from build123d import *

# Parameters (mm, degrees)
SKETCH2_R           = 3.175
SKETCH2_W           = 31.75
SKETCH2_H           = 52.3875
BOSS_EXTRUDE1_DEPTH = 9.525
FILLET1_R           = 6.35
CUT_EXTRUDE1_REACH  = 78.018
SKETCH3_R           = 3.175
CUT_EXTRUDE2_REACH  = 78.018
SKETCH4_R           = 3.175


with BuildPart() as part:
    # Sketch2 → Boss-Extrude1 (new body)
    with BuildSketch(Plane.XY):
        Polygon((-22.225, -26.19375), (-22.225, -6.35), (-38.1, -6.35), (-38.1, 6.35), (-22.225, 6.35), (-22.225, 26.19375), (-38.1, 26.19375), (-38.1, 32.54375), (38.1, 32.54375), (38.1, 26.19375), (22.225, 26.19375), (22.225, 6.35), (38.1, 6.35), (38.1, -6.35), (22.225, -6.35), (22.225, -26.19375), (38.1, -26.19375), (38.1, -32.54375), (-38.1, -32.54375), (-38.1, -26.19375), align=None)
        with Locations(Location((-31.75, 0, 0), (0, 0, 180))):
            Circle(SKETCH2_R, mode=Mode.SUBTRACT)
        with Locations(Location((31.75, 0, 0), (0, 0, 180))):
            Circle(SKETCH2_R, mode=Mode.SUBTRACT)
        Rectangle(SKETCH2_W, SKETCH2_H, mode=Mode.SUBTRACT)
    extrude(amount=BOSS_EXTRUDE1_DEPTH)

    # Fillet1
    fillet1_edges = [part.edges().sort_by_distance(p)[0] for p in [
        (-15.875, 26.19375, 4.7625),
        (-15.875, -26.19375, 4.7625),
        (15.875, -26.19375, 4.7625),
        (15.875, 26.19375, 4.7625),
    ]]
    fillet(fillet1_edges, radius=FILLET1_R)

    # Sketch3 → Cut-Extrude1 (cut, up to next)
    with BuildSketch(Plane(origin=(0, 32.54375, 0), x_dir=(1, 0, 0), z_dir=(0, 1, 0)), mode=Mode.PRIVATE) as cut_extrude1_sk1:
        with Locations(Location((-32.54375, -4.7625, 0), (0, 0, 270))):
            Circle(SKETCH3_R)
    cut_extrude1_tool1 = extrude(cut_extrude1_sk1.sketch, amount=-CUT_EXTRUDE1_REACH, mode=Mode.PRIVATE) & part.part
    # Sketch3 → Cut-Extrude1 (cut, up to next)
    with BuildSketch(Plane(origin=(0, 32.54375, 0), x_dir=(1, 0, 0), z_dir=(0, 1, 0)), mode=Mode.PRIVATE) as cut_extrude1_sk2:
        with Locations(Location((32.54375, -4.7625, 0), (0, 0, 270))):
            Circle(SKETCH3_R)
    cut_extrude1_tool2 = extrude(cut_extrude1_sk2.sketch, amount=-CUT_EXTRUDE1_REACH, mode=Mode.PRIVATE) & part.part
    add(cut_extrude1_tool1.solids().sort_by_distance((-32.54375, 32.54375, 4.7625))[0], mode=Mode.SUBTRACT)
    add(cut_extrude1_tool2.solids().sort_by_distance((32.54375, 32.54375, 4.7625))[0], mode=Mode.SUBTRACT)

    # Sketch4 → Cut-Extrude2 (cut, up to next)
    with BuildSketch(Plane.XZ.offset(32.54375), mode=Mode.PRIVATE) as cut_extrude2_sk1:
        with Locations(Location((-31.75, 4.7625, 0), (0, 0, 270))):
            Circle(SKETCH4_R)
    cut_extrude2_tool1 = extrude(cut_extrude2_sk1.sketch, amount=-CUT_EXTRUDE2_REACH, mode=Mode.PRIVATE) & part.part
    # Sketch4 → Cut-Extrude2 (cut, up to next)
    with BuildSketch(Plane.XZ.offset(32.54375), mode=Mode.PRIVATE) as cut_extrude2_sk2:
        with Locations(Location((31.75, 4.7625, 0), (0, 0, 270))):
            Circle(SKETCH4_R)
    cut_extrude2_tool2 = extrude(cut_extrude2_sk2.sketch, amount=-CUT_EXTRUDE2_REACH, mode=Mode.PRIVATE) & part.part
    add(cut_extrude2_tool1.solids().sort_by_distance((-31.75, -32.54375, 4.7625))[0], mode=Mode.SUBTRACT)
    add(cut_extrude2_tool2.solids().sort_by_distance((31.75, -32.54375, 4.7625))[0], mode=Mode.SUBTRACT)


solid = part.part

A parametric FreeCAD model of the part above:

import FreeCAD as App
import Part
import Sketcher
Q = App.Units.Quantity


def edges_at(feature, points):
    """Names of the edges that pass closest to the given points."""
    edges = feature.Shape.Edges
    near = lambda p: min(range(len(edges)), key=lambda i: edges[i].distToShape(Part.Vertex(*p))[0])
    return sorted({f"Edge{near(p) + 1}" for p in points})


def add_polygon(sketch, points):
    """Adds a closed chain of lines whose ends are joined by coincident constraints."""
    first, n = sketch.GeometryCount, len(points)
    for a, b in zip(points, points[1:] + points[:1]):
        sketch.addGeometry(Part.LineSegment(App.Vector(*a, 0), App.Vector(*b, 0)), False)
    for i in range(n):
        sketch.addConstraint(Sketcher.Constraint("Coincident", first + i, 2, first + (i + 1) % n, 1))

doc = App.newDocument("Part")
body = doc.addObject("PartDesign::Body", "Body")

# Sketch on XY plane
sketch1 = body.newObject("Sketcher::SketchObject", "Sketch")
sketch1.AttachmentSupport = (doc.getObject("XY_Plane"), [""])
sketch1.MapMode = "FlatFace"
add_polygon(sketch1, [(-22.225, -6.35), (-22.225, -26.19375), (-38.1, -26.19375), (-38.1, -32.54375), (38.1, -32.54375), (38.1, -26.19375), (22.225, -26.19375), (22.225, -6.35), (38.1, -6.35), (38.1, 6.35), (22.225, 6.35), (22.225, 26.19375), (38.1, 26.19375), (38.1, 32.54375), (-38.1, 32.54375), (-38.1, 26.19375), (-22.225, 26.19375), (-22.225, 6.35), (-38.1, 6.35), (-38.1, -6.35)])  # lines 0-19
sketch1.addGeometry(Part.Circle(App.Vector(31.75, 0, 0), App.Vector(0, 0, 1), 3.175), False)  # 20
add_polygon(sketch1, [(-15.875, -26.19375), (-15.875, 26.19375), (15.875, 26.19375), (15.875, -26.19375)])  # lines 21-24
sketch1.addGeometry(Part.Circle(App.Vector(-31.75, 0, 0), App.Vector(0, 0, 1), 3.175), False)  # 25
sketch1.addConstraint([
    Sketcher.Constraint("Vertical", 0),
    Sketcher.Constraint("Horizontal", 1),
    Sketcher.Constraint("Vertical", 2),
    Sketcher.Constraint("Horizontal", 3),
    Sketcher.Constraint("Vertical", 4),
    Sketcher.Constraint("Horizontal", 5),
    Sketcher.Constraint("Vertical", 6),
    Sketcher.Constraint("Horizontal", 7),
    Sketcher.Constraint("Vertical", 8),
    Sketcher.Constraint("Horizontal", 9),
    Sketcher.Constraint("Vertical", 10),
    Sketcher.Constraint("Horizontal", 11),
    Sketcher.Constraint("Vertical", 12),
    Sketcher.Constraint("Horizontal", 13),
    Sketcher.Constraint("Vertical", 14),
    Sketcher.Constraint("Horizontal", 15),
    Sketcher.Constraint("Vertical", 16),
    Sketcher.Constraint("Horizontal", 17),
    Sketcher.Constraint("Vertical", 18),
    Sketcher.Constraint("Horizontal", 19),
    Sketcher.Constraint("Vertical", 21),
    Sketcher.Constraint("Horizontal", 22),
    Sketcher.Constraint("Vertical", 23),
    Sketcher.Constraint("Horizontal", 24),
    Sketcher.Constraint("Equal", 20, 25),
    Sketcher.Constraint("Symmetric", 20, 3, 25, 3, -1, 1),
    Sketcher.Constraint("Symmetric", 0, 2, 10, 2, -1, 1),
    Sketcher.Constraint("Symmetric", 2, 2, 12, 2, -1, 1),
    Sketcher.Constraint("Symmetric", 4, 2, 14, 2, -1, 1),
    Sketcher.Constraint("Symmetric", 6, 2, 16, 2, -1, 1),
    Sketcher.Constraint("Symmetric", 8, 2, 18, 2, -1, 1),
    Sketcher.Constraint("Symmetric", 21, 2, 23, 2, -1, 1),
    Sketcher.Constraint("Symmetric", 1, 2, 4, 2, -2),
    Sketcher.Constraint("Symmetric", 9, 2, 16, 2, -2),
    Sketcher.Constraint("PointOnObject", 20, 3, -1),
    Sketcher.Constraint("Horizontal", 15, 2, 21, 2),
    Sketcher.Constraint("Vertical", 4, 2, 7, 2),
    Sketcher.Constraint("Diameter", 20, Q("0.25 in")),
    Sketcher.Constraint("DistanceX", 3, 1, 3, 2, Q("3 in")),
    Sketcher.Constraint("DistanceY", 8, 1, 8, 2, Q("0.5 in")),
    Sketcher.Constraint("DistanceX", 22, 1, 22, 2, Q("1.25 in")),
    Sketcher.Constraint("DistanceY", 2, 2, 2, 1, Q("0.25 in")),
    Sketcher.Constraint("DistanceX", 25, 3, 20, 3, Q("2.5 in")),
    Sketcher.Constraint("DistanceX", 1, 2, 1, 1, Q("0.625 in")),
    Sketcher.Constraint("DistanceY", 0, 2, 0, 1, Q("0.78125 in")),
])
pad1 = body.newObject("PartDesign::Pad", "Pad")
pad1.Profile = sketch1
pad1.Length = Q("0.375 in")
doc.recompute()

fillet = body.newObject("PartDesign::Fillet", "Fillet")
fillet.Base = (pad1, edges_at(pad1, [
    (-15.875, 26.194, 4.763),
    (-15.875, -26.194, 4.763),
    (15.875, -26.194, 4.763),
    (15.875, 26.194, 4.763),
]))
fillet.Radius = Q("0.25 in")

# Sketch on XZ plane
sketch2 = body.newObject("Sketcher::SketchObject", "Sketch001")
sketch2.AttachmentSupport = (doc.getObject("XZ_Plane"), [""])
sketch2.MapMode = "FlatFace"
sketch2.AttachmentOffset = App.Placement(App.Vector(0, 0, -1.28125 * 25.4), App.Rotation())
sketch2.addGeometry(Part.Circle(App.Vector(-32.54375, 4.7625, 0), App.Vector(0, 0, 1), 3.175), False)
sketch2.addConstraint([
    Sketcher.Constraint("Diameter", 0, Q("0.25 in")),
    Sketcher.Constraint("DistanceX", 0, 3, -1, 1, Q("1.28125 in")),
    Sketcher.Constraint("DistanceY", -1, 1, 0, 3, Q("0.1875 in")),
])
pocket1 = body.newObject("PartDesign::Pocket", "Pocket")
pocket1.Profile = sketch2
pocket1.Type = "UpToFirst"
pocket1.Reversed = True

# Sketch on XZ plane
sketch3 = body.newObject("Sketcher::SketchObject", "Sketch002")
sketch3.AttachmentSupport = (doc.getObject("XZ_Plane"), [""])
sketch3.MapMode = "FlatFace"
sketch3.AttachmentOffset = App.Placement(App.Vector(0, 0, -1.28125 * 25.4), App.Rotation())
sketch3.addGeometry(Part.Circle(App.Vector(32.54375, 4.7625, 0), App.Vector(0, 0, 1), 3.175), False)
sketch3.addConstraint([
    Sketcher.Constraint("Diameter", 0, Q("0.25 in")),
    Sketcher.Constraint("DistanceX", -1, 1, 0, 3, Q("1.28125 in")),
    Sketcher.Constraint("DistanceY", -1, 1, 0, 3, Q("0.1875 in")),
])
pocket2 = body.newObject("PartDesign::Pocket", "Pocket001")
pocket2.Profile = sketch3
pocket2.Type = "UpToFirst"
pocket2.Reversed = True

# Sketch on XZ plane
sketch4 = body.newObject("Sketcher::SketchObject", "Sketch003")
sketch4.AttachmentSupport = (doc.getObject("XZ_Plane"), [""])
sketch4.MapMode = "FlatFace"
sketch4.AttachmentOffset = App.Placement(App.Vector(0, 0, 1.28125 * 25.4), App.Rotation())
sketch4.addGeometry(Part.Circle(App.Vector(-31.75, 4.7625, 0), App.Vector(0, 0, 1), 3.175), False)
sketch4.addConstraint([
    Sketcher.Constraint("Diameter", 0, Q("0.25 in")),
    Sketcher.Constraint("DistanceX", 0, 3, -1, 1, Q("1.25 in")),
    Sketcher.Constraint("DistanceY", -1, 1, 0, 3, Q("0.1875 in")),
])
pocket3 = body.newObject("PartDesign::Pocket", "Pocket002")
pocket3.Profile = sketch4
pocket3.Type = "UpToFirst"

# Sketch on XZ plane
sketch5 = body.newObject("Sketcher::SketchObject", "Sketch004")
sketch5.AttachmentSupport = (doc.getObject("XZ_Plane"), [""])
sketch5.MapMode = "FlatFace"
sketch5.AttachmentOffset = App.Placement(App.Vector(0, 0, 1.28125 * 25.4), App.Rotation())
sketch5.addGeometry(Part.Circle(App.Vector(31.75, 4.7625, 0), App.Vector(0, 0, 1), 3.175), False)
sketch5.addConstraint([
    Sketcher.Constraint("Diameter", 0, Q("0.25 in")),
    Sketcher.Constraint("DistanceX", -1, 1, 0, 3, Q("1.25 in")),
    Sketcher.Constraint("DistanceY", -1, 1, 0, 3, Q("0.1875 in")),
])
pocket4 = body.newObject("PartDesign::Pocket", "Pocket003")
pocket4.Profile = sketch5
pocket4.Type = "UpToFirst"

doc.recompute()
